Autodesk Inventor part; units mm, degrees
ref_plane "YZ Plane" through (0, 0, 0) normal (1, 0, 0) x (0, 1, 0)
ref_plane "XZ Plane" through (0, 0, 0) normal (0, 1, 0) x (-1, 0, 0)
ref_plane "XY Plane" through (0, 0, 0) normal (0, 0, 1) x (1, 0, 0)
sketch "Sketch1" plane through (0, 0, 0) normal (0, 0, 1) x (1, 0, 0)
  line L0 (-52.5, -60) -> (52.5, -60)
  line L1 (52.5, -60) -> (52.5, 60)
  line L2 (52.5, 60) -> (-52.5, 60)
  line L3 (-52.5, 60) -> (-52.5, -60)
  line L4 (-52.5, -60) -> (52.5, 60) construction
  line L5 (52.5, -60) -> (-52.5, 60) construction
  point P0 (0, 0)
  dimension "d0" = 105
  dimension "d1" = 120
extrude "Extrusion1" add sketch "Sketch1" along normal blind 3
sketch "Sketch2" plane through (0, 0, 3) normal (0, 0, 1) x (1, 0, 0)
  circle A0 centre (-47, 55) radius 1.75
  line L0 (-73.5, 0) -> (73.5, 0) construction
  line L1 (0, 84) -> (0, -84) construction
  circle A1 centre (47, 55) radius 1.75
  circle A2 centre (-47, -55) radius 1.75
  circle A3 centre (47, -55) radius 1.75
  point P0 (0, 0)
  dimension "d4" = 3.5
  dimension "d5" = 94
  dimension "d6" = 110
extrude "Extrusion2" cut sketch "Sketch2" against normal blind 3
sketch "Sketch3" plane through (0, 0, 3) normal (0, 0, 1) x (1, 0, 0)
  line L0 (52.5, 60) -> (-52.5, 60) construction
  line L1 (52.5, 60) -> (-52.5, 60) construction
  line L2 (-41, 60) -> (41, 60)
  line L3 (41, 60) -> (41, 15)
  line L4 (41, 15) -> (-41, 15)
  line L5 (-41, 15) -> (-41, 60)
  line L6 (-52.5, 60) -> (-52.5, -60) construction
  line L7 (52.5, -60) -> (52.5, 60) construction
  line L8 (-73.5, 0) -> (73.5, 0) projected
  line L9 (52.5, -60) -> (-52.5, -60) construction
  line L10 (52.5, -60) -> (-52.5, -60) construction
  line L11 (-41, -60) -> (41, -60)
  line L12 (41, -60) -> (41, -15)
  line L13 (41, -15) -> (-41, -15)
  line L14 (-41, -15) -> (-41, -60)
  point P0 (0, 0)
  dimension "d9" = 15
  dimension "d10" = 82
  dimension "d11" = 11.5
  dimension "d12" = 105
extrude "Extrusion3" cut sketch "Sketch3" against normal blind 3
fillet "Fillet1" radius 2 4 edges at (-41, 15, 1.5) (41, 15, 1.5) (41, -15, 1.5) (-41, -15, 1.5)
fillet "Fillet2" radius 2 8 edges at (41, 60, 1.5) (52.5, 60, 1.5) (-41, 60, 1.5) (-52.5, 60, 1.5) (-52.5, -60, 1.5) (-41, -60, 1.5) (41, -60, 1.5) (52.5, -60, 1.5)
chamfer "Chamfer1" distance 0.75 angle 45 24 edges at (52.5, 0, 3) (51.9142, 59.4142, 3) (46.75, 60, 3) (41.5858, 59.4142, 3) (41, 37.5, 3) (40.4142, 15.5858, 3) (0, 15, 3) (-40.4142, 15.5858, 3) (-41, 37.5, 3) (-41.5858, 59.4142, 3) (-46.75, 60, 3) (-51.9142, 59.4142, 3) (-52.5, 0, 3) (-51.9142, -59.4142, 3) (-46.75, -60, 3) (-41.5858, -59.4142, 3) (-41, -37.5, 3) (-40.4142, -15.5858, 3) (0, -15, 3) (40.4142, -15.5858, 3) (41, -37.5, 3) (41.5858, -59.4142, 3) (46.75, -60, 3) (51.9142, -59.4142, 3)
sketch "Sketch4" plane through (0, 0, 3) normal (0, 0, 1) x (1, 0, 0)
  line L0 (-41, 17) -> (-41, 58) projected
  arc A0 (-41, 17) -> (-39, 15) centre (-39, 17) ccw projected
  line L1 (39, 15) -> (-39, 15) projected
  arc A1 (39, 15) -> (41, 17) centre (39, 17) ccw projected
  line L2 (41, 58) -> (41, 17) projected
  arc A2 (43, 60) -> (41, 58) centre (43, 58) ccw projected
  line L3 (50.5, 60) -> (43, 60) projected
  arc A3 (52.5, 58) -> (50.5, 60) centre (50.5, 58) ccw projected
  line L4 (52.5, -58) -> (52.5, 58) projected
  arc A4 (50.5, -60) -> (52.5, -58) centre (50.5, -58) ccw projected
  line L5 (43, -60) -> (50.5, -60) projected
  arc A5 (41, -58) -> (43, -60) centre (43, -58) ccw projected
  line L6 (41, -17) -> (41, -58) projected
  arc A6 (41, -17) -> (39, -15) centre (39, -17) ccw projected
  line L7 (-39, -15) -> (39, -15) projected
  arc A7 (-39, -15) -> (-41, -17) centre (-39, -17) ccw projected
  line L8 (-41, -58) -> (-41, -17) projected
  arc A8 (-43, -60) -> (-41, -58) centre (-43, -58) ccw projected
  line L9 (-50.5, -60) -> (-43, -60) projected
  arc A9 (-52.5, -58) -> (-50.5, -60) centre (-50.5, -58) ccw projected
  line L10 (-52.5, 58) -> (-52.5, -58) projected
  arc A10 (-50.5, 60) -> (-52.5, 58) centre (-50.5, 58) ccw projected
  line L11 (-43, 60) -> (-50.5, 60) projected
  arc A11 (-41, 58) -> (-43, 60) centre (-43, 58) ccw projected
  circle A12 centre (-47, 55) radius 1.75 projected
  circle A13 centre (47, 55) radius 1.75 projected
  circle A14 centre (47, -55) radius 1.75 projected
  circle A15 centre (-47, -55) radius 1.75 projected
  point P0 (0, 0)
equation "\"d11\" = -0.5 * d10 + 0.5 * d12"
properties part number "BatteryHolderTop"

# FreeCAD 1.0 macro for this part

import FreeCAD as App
import Part
import Sketcher

V = App.Vector


def edges_at(feature, points):
    """Names of the edges that pass closest to the given points."""
    edges = feature.Shape.Edges
    near = lambda p: min(range(len(edges)), key=lambda i: edges[i].distToShape(Part.Vertex(*p))[0])
    return sorted({f"Edge{near(p) + 1}" for p in points})

doc = App.newDocument("Part")
body = doc.addObject("PartDesign::Body", "Body")

# Sketch on XY plane
sketch1 = doc.addObject("Sketcher::SketchObject", "Sketch")
body.addObject(sketch1)
sketch1.AttachmentSupport = (doc.XY_Plane, [""])
sketch1.MapMode = "FlatFace"
sketch1.addGeometry([
    Part.LineSegment(V(-52, 60, 0), V(-52, -60, 0)),
    Part.LineSegment(V(-52, -60, 0), V(52, -60, 0)),
    Part.LineSegment(V(52, -60, 0), V(52, 60, 0)),
    Part.LineSegment(V(52, 60, 0), V(-52, 60, 0)),
], False)
sketch1.addConstraint([
    Sketcher.Constraint("Coincident", 0, 2, 1, 1),
    Sketcher.Constraint("Coincident", 1, 2, 2, 1),
    Sketcher.Constraint("Coincident", 2, 2, 3, 1),
    Sketcher.Constraint("Coincident", 3, 2, 0, 1),
    Sketcher.Constraint("Vertical", 0),
    Sketcher.Constraint("Horizontal", 1),
    Sketcher.Constraint("Vertical", 2),
    Sketcher.Constraint("Horizontal", 3),
    Sketcher.Constraint("Symmetric", 0, 2, 2, 2, -1, 1),
    Sketcher.Constraint("DistanceX", 1, 1, 1, 2, 105.0),
    Sketcher.Constraint("DistanceY", 0, 2, 0, 1, 120.0),
])
pad1 = doc.addObject("PartDesign::Pad", "Pad")
body.addObject(pad1)
pad1.Profile = sketch1
pad1.Length = 3

# Sketch on XY plane
sketch2 = doc.addObject("Sketcher::SketchObject", "Sketch001")
body.addObject(sketch2)
sketch2.AttachmentSupport = (doc.XY_Plane, [""])
sketch2.MapMode = "FlatFace"
sketch2.AttachmentOffset = App.Placement(V(0, 0, 3), App.Rotation())
sketch2.addGeometry([
    Part.Circle(V(-47, 55, 0), V(0, 0, 1), 1.8),
    Part.Circle(V(47, 55, 0), V(0, 0, 1), 1.8),
    Part.Circle(V(-47, -55, 0), V(0, 0, 1), 1.8),
    Part.Circle(V(47, -55, 0), V(0, 0, 1), 1.8),
], False)
sketch2.addConstraint([
    Sketcher.Constraint("Equal", 0, 1),
    Sketcher.Constraint("Equal", 1, 2),
    Sketcher.Constraint("Equal", 2, 3),
    Sketcher.Constraint("Symmetric", 1, 3, 2, 3, -1, 1),
    Sketcher.Constraint("Symmetric", 0, 3, 3, 3, -1, 1),
    Sketcher.Constraint("Symmetric", 0, 3, 1, 3, -2),
    Sketcher.Constraint("Diameter", 0, 3.5),
    Sketcher.Constraint("DistanceX", 0, 3, 1, 3, 94.0),
    Sketcher.Constraint("DistanceY", 2, 3, 0, 3, 110.0),
])
pocket1 = doc.addObject("PartDesign::Pocket", "Pocket")
body.addObject(pocket1)
pocket1.Profile = sketch2
pocket1.Length = 3

# Sketch on XY plane
sketch3 = doc.addObject("Sketcher::SketchObject", "Sketch002")
body.addObject(sketch3)
sketch3.AttachmentSupport = (doc.XY_Plane, [""])
sketch3.MapMode = "FlatFace"
sketch3.AttachmentOffset = App.Placement(V(0, 0, 3), App.Rotation())
sketch3.addGeometry([
    Part.LineSegment(V(41, 60, 0), V(-41, 60, 0)),  # 0
    Part.LineSegment(V(-41, 60, 0), V(-41, 15, 0)),  # 1
    Part.LineSegment(V(-41, 15, 0), V(41, 15, 0)),  # 2
    Part.LineSegment(V(41, 15, 0), V(41, 60, 0)),  # 3
    Part.LineSegment(V(-41, -15, 0), V(-41, -60, 0)),  # 4
    Part.LineSegment(V(-41, -60, 0), V(41, -60, 0)),  # 5
    Part.LineSegment(V(41, -60, 0), V(41, -15, 0)),  # 6
    Part.LineSegment(V(41, -15, 0), V(-41, -15, 0)),  # 7
], False)
sketch3.addConstraint([
    Sketcher.Constraint("Coincident", 0, 2, 1, 1),
    Sketcher.Constraint("Coincident", 1, 2, 2, 1),
    Sketcher.Constraint("Coincident", 2, 2, 3, 1),
    Sketcher.Constraint("Coincident", 3, 2, 0, 1),
    Sketcher.Constraint("Coincident", 4, 2, 5, 1),
    Sketcher.Constraint("Coincident", 5, 2, 6, 1),
    Sketcher.Constraint("Coincident", 6, 2, 7, 1),
    Sketcher.Constraint("Coincident", 7, 2, 4, 1),
    Sketcher.Constraint("Horizontal", 0),
    Sketcher.Constraint("Vertical", 1),
    Sketcher.Constraint("Horizontal", 2),
    Sketcher.Constraint("Vertical", 3),
    Sketcher.Constraint("Vertical", 4),
    Sketcher.Constraint("Horizontal", 5),
    Sketcher.Constraint("Vertical", 6),
    Sketcher.Constraint("Horizontal", 7),
    Sketcher.Constraint("Symmetric", 3, 2, 4, 2, -1, 1),
    Sketcher.Constraint("Symmetric", 1, 2, 6, 2, -1, 1),
    Sketcher.Constraint("Vertical", 1, 2, 4, 2),
    Sketcher.Constraint("DistanceX", 0, 2, 0, 1, 82.0),
    Sketcher.Constraint("DistanceY", -1, 1, 1, 2, 15.0),
    Sketcher.Constraint("DistanceY", 1, 2, 1, 1, 45.0),
])
pocket2 = doc.addObject("PartDesign::Pocket", "Pocket001")
body.addObject(pocket2)
pocket2.Profile = sketch3
pocket2.Length = 3
doc.recompute()

fillet = doc.addObject("PartDesign::Fillet", "Fillet")
body.addObject(fillet)
fillet.Base = (pocket2, edges_at(pocket2, [
    (-41, 15, 1.5),
    (41, 15, 1.5),
    (41, -15, 1.5),
    (-41, -15, 1.5),
]))
fillet.Radius = 2
doc.recompute()

fillet2 = doc.addObject("PartDesign::Fillet", "Fillet001")
body.addObject(fillet2)
fillet2.Base = (fillet, edges_at(fillet, [
    (41, 60, 1.5),
    (52.5, 60, 1.5),
    (-41, 60, 1.5),
    (-52.5, 60, 1.5),
    (-52.5, -60, 1.5),
    (-41, -60, 1.5),
    (41, -60, 1.5),
    (52.5, -60, 1.5),
]))
fillet2.Radius = 2
doc.recompute()

chamfer = doc.addObject("PartDesign::Chamfer", "Chamfer")
body.addObject(chamfer)
chamfer.Base = (fillet2, edges_at(fillet2, [
    (52.5, 0, 3),
    (51.914, 59.414, 3),
    (46.75, 60, 3),
    (41.586, 59.414, 3),
    (41, 37.5, 3),
    (40.414, 15.586, 3),
    (0, 15, 3),
    (-40.414, 15.586, 3),
    (-41, 37.5, 3),
    (-41.586, 59.414, 3),
    (-46.75, 60, 3),
    (-51.914, 59.414, 3),
    (-52.5, 0, 3),
    (-51.914, -59.414, 3),
    (-46.75, -60, 3),
    (-41.586, -59.414, 3),
    (-41, -37.5, 3),
    (-40.414, -15.586, 3),
    (0, -15, 3),
    (40.414, -15.586, 3),
    (41, -37.5, 3),
    (41.586, -59.414, 3),
    (46.75, -60, 3),
    (51.914, -59.414, 3),
]))
chamfer.Size = 0.75

doc.recompute()
